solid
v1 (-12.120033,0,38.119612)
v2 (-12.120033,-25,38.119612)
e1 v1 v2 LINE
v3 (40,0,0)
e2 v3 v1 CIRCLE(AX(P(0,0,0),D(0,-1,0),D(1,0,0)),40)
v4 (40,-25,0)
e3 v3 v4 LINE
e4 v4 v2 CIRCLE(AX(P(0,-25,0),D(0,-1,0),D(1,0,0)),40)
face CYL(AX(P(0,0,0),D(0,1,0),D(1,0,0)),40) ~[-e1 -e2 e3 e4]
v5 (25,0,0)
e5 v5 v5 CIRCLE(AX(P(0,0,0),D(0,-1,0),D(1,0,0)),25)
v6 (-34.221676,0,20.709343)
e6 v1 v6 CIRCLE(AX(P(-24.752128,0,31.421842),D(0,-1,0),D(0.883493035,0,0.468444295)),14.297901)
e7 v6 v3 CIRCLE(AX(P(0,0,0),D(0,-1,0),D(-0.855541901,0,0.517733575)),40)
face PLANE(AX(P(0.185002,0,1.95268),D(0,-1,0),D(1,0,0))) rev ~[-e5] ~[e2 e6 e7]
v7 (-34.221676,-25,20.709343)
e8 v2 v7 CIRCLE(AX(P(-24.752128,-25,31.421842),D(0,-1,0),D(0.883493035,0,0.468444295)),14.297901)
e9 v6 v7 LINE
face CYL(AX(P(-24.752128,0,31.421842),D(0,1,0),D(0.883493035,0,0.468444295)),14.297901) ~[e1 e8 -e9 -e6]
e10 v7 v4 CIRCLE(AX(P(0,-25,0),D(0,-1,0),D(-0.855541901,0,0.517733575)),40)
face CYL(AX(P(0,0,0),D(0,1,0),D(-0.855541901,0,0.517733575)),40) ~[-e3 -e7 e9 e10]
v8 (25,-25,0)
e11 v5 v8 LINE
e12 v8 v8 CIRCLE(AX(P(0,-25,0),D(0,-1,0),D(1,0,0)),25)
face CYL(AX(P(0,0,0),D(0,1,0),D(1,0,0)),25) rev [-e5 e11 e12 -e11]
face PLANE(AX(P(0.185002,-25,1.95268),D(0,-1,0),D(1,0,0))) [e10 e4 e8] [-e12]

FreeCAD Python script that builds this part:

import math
import FreeCAD as App
import Part
import Sketcher

doc = App.newDocument("Part")
body = doc.addObject("PartDesign::Body", "Body")

sketch1 = body.newObject("Sketcher::SketchObject", "Sketch")
sketch1.AttachmentSupport = (doc.getObject("XZ_Plane"), [""])
sketch1.MapMode = "FlatFace"
sketch1.addGeometry([
    Part.ArcOfCircle(Part.Circle(App.Vector(0, 0, 0), App.Vector(0, 0, 1), 40), math.radians(149), math.radians(360)),
    Part.ArcOfCircle(Part.Circle(App.Vector(0, 0, 0), App.Vector(0, 0, 1), 40), math.radians(0), math.radians(108)),
    Part.ArcOfCircle(Part.Circle(App.Vector(-25, 31, 0), App.Vector(0, 0, 1), 14), math.radians(28), math.radians(229)),
    Part.Circle(App.Vector(0, 0, 0), App.Vector(0, 0, 1), 25),
], False)
sketch1.addConstraint([
    Sketcher.Constraint("Tangent", 0, 2, 1, 1),
    Sketcher.Constraint("Coincident", 1, 2, 2, 1),
    Sketcher.Constraint("Coincident", 2, 2, 0, 1),
    Sketcher.Constraint("Coincident", 0, 3, -1, 1),
    Sketcher.Constraint("Coincident", 3, 3, -1, 1),
    Sketcher.Constraint("Equal", 0, 1),
    Sketcher.Constraint("PointOnObject", 0, 2, -1),
    Sketcher.Constraint("Diameter", 3, 50.0),
    Sketcher.Constraint("Radius", 0, 40.0),
    Sketcher.Constraint("Radius", 2, 14.297901),
    Sketcher.Constraint("DistanceY", 2, 2, 2, 3, 10.712499),
    Sketcher.Constraint("DistanceX", 2, 3, -1, 1, 24.752128),
])
pad1 = body.newObject("PartDesign::Pad", "Pad")
pad1.Profile = sketch1
pad1.Length = 25

doc.recompute()
